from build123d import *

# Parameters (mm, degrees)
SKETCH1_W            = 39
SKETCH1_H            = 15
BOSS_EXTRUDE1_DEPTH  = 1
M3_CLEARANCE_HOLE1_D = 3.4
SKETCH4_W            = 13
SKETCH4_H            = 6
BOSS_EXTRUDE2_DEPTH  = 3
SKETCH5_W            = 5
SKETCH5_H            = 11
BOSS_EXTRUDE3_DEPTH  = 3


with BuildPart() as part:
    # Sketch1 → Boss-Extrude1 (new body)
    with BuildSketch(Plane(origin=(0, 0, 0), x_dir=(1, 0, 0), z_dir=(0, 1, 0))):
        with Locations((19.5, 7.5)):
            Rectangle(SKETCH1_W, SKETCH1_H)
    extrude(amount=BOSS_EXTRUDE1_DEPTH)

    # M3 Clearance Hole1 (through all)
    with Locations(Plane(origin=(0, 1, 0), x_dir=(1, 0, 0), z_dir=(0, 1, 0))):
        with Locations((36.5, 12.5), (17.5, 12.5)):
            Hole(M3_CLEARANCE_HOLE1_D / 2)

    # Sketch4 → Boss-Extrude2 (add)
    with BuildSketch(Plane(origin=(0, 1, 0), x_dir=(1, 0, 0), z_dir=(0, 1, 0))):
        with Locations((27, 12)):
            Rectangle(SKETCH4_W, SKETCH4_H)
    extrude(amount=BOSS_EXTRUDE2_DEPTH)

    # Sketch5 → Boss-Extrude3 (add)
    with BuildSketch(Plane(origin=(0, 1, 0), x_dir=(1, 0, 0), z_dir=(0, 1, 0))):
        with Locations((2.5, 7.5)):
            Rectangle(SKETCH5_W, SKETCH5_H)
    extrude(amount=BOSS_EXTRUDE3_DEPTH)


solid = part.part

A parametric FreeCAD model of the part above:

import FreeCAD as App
import Part
import Sketcher
from FreeCAD import Vector
Q = App.Units.Quantity

doc = App.newDocument("Part")
params = doc.addObject("Spreadsheet::Sheet", "Params")
for row, (alias, value) in enumerate([
    ("sketch1_width", "39 mm"),
    ("sketch1_height", "15 mm"),
    ("pad1_length", "1 mm"),
    ("sketch2_diameter", "3.4 mm"),
    ("hole_diameter", "3.4 mm"),
    ("sketch3_width", "13 mm"),
    ("sketch3_height", "6 mm"),
    ("pad2_length", "3 mm"),
    ("sketch4_width", "5 mm"),
    ("sketch4_height", "11 mm"),
    ("pad3_length", "3 mm"),
], start=1):
    params.set(f"A{row}", alias)
    params.set(f"B{row}", "=" + value)
    params.setAlias(f"B{row}", alias)

body = doc.addObject("PartDesign::Body", "Body")

sketch1 = body.newObject("Sketcher::SketchObject", "Sketch")
sketch1.AttachmentSupport = (doc.getObject("XZ_Plane"), [""])
sketch1.MapMode = "FlatFace"
sketch1.addGeometry(Part.LineSegment(Vector(0, -15, 0), Vector(0, 0, 0)), False)
sketch1.addGeometry(Part.LineSegment(Vector(0, 0, 0), Vector(39, 0, 0)), False)
sketch1.addGeometry(Part.LineSegment(Vector(39, 0, 0), Vector(39, -15, 0)), False)
sketch1.addGeometry(Part.LineSegment(Vector(39, -15, 0), Vector(0, -15, 0)), False)
sketch1.addConstraint(Sketcher.Constraint("Coincident", 0, 2, 1, 1))
sketch1.addConstraint(Sketcher.Constraint("Coincident", 1, 2, 2, 1))
sketch1.addConstraint(Sketcher.Constraint("Coincident", 2, 2, 3, 1))
sketch1.addConstraint(Sketcher.Constraint("Coincident", 3, 2, 0, 1))
sketch1.addConstraint(Sketcher.Constraint("Vertical", 0))
sketch1.addConstraint(Sketcher.Constraint("Horizontal", 1))
sketch1.addConstraint(Sketcher.Constraint("Vertical", 2))
sketch1.addConstraint(Sketcher.Constraint("Horizontal", 3))
sketch1.addConstraint(Sketcher.Constraint("Coincident", 0, 2, -1, 1))
sketch1.addConstraint(Sketcher.Constraint("DistanceX", 1, 1, 1, 2, Q("39 mm")))
sketch1.addConstraint(Sketcher.Constraint("DistanceY", 0, 1, 0, 2, Q("15 mm")))
sketch1.setExpression("Constraints[9]", "Params.sketch1_width")
sketch1.setExpression("Constraints[10]", "Params.sketch1_height")
pad1 = body.newObject("PartDesign::Pad", "Pad")
pad1.Profile = sketch1
pad1.setExpression("Length", "Params.pad1_length")
pad1.Reversed = True

sketch2 = body.newObject("Sketcher::SketchObject", "Sketch001")
sketch2.AttachmentSupport = (doc.getObject("XZ_Plane"), [""])
sketch2.MapMode = "FlatFace"
sketch2.AttachmentOffset = App.Placement(Vector(0, 0, -1), App.Rotation())
sketch2.addGeometry(Part.Circle(Vector(36.5, -12.5, 0), Vector(0, 0, 1), 1.7), False)
sketch2.addGeometry(Part.Circle(Vector(17.5, -12.5, 0), Vector(0, 0, 1), 1.7), False)
sketch2.addConstraint(Sketcher.Constraint("Equal", 0, 1))
sketch2.addConstraint(Sketcher.Constraint("Horizontal", 0, 3, 1, 3))
sketch2.addConstraint(Sketcher.Constraint("Diameter", 0, Q("3.4 mm")))
sketch2.addConstraint(Sketcher.Constraint("DistanceX", 1, 3, 0, 3, Q("19 mm")))
sketch2.addConstraint(Sketcher.Constraint("DistanceX", -1, 1, 0, 3, Q("36.5 mm")))
sketch2.addConstraint(Sketcher.Constraint("DistanceY", 0, 3, -1, 1, Q("12.5 mm")))
sketch2.setExpression("Constraints[2]", "Params.sketch2_diameter")
doc.recompute()
hole = body.newObject("PartDesign::Hole", "Hole")
hole.Profile = sketch2
hole.ThreadType = "None"
hole.setExpression("Diameter", "Params.hole_diameter")
hole.DepthType = "ThroughAll"
hole.Reversed = True

sketch3 = body.newObject("Sketcher::SketchObject", "Sketch002")
sketch3.AttachmentSupport = (doc.getObject("XZ_Plane"), [""])
sketch3.MapMode = "FlatFace"
sketch3.AttachmentOffset = App.Placement(Vector(0, 0, -1), App.Rotation())
sketch3.addGeometry(Part.LineSegment(Vector(20.5, -15, 0), Vector(20.5, -9, 0)), False)
sketch3.addGeometry(Part.LineSegment(Vector(20.5, -9, 0), Vector(33.5, -9, 0)), False)
sketch3.addGeometry(Part.LineSegment(Vector(33.5, -9, 0), Vector(33.5, -15, 0)), False)
sketch3.addGeometry(Part.LineSegment(Vector(33.5, -15, 0), Vector(20.5, -15, 0)), False)
sketch3.addConstraint(Sketcher.Constraint("Coincident", 0, 2, 1, 1))
sketch3.addConstraint(Sketcher.Constraint("Coincident", 1, 2, 2, 1))
sketch3.addConstraint(Sketcher.Constraint("Coincident", 2, 2, 3, 1))
sketch3.addConstraint(Sketcher.Constraint("Coincident", 3, 2, 0, 1))
sketch3.addConstraint(Sketcher.Constraint("Vertical", 0))
sketch3.addConstraint(Sketcher.Constraint("Horizontal", 1))
sketch3.addConstraint(Sketcher.Constraint("Vertical", 2))
sketch3.addConstraint(Sketcher.Constraint("Horizontal", 3))
sketch3.addConstraint(Sketcher.Constraint("DistanceX", 1, 1, 1, 2, Q("13 mm")))
sketch3.addConstraint(Sketcher.Constraint("DistanceY", 0, 1, 0, 2, Q("6 mm")))
sketch3.addConstraint(Sketcher.Constraint("DistanceY", 0, 2, -1, 1, Q("9 mm")))
sketch3.addConstraint(Sketcher.Constraint("DistanceX", -1, 1, 0, 2, Q("20.5 mm")))
sketch3.setExpression("Constraints[8]", "Params.sketch3_width")
sketch3.setExpression("Constraints[9]", "Params.sketch3_height")
pad2 = body.newObject("PartDesign::Pad", "Pad001")
pad2.Profile = sketch3
pad2.setExpression("Length", "Params.pad2_length")
pad2.Reversed = True

sketch4 = body.newObject("Sketcher::SketchObject", "Sketch003")
sketch4.AttachmentSupport = (doc.getObject("XZ_Plane"), [""])
sketch4.MapMode = "FlatFace"
sketch4.AttachmentOffset = App.Placement(Vector(0, 0, -1), App.Rotation())
sketch4.addGeometry(Part.LineSegment(Vector(0, -13, 0), Vector(0, -2, 0)), False)
sketch4.addGeometry(Part.LineSegment(Vector(0, -2, 0), Vector(5, -2, 0)), False)
sketch4.addGeometry(Part.LineSegment(Vector(5, -2, 0), Vector(5, -13, 0)), False)
sketch4.addGeometry(Part.LineSegment(Vector(5, -13, 0), Vector(0, -13, 0)), False)
sketch4.addConstraint(Sketcher.Constraint("Coincident", 0, 2, 1, 1))
sketch4.addConstraint(Sketcher.Constraint("Coincident", 1, 2, 2, 1))
sketch4.addConstraint(Sketcher.Constraint("Coincident", 2, 2, 3, 1))
sketch4.addConstraint(Sketcher.Constraint("Coincident", 3, 2, 0, 1))
sketch4.addConstraint(Sketcher.Constraint("Vertical", 0))
sketch4.addConstraint(Sketcher.Constraint("Horizontal", 1))
sketch4.addConstraint(Sketcher.Constraint("Vertical", 2))
sketch4.addConstraint(Sketcher.Constraint("Horizontal", 3))
sketch4.addConstraint(Sketcher.Constraint("PointOnObject", 0, 2, -2))
sketch4.addConstraint(Sketcher.Constraint("DistanceX", 1, 1, 1, 2, Q("5 mm")))
sketch4.addConstraint(Sketcher.Constraint("DistanceY", 0, 1, 0, 2, Q("11 mm")))
sketch4.addConstraint(Sketcher.Constraint("DistanceY", 0, 2, -1, 1, Q("2 mm")))
sketch4.setExpression("Constraints[9]", "Params.sketch4_width")
sketch4.setExpression("Constraints[10]", "Params.sketch4_height")
pad3 = body.newObject("PartDesign::Pad", "Pad002")
pad3.Profile = sketch4
pad3.setExpression("Length", "Params.pad3_length")
pad3.Reversed = True

doc.recompute()
